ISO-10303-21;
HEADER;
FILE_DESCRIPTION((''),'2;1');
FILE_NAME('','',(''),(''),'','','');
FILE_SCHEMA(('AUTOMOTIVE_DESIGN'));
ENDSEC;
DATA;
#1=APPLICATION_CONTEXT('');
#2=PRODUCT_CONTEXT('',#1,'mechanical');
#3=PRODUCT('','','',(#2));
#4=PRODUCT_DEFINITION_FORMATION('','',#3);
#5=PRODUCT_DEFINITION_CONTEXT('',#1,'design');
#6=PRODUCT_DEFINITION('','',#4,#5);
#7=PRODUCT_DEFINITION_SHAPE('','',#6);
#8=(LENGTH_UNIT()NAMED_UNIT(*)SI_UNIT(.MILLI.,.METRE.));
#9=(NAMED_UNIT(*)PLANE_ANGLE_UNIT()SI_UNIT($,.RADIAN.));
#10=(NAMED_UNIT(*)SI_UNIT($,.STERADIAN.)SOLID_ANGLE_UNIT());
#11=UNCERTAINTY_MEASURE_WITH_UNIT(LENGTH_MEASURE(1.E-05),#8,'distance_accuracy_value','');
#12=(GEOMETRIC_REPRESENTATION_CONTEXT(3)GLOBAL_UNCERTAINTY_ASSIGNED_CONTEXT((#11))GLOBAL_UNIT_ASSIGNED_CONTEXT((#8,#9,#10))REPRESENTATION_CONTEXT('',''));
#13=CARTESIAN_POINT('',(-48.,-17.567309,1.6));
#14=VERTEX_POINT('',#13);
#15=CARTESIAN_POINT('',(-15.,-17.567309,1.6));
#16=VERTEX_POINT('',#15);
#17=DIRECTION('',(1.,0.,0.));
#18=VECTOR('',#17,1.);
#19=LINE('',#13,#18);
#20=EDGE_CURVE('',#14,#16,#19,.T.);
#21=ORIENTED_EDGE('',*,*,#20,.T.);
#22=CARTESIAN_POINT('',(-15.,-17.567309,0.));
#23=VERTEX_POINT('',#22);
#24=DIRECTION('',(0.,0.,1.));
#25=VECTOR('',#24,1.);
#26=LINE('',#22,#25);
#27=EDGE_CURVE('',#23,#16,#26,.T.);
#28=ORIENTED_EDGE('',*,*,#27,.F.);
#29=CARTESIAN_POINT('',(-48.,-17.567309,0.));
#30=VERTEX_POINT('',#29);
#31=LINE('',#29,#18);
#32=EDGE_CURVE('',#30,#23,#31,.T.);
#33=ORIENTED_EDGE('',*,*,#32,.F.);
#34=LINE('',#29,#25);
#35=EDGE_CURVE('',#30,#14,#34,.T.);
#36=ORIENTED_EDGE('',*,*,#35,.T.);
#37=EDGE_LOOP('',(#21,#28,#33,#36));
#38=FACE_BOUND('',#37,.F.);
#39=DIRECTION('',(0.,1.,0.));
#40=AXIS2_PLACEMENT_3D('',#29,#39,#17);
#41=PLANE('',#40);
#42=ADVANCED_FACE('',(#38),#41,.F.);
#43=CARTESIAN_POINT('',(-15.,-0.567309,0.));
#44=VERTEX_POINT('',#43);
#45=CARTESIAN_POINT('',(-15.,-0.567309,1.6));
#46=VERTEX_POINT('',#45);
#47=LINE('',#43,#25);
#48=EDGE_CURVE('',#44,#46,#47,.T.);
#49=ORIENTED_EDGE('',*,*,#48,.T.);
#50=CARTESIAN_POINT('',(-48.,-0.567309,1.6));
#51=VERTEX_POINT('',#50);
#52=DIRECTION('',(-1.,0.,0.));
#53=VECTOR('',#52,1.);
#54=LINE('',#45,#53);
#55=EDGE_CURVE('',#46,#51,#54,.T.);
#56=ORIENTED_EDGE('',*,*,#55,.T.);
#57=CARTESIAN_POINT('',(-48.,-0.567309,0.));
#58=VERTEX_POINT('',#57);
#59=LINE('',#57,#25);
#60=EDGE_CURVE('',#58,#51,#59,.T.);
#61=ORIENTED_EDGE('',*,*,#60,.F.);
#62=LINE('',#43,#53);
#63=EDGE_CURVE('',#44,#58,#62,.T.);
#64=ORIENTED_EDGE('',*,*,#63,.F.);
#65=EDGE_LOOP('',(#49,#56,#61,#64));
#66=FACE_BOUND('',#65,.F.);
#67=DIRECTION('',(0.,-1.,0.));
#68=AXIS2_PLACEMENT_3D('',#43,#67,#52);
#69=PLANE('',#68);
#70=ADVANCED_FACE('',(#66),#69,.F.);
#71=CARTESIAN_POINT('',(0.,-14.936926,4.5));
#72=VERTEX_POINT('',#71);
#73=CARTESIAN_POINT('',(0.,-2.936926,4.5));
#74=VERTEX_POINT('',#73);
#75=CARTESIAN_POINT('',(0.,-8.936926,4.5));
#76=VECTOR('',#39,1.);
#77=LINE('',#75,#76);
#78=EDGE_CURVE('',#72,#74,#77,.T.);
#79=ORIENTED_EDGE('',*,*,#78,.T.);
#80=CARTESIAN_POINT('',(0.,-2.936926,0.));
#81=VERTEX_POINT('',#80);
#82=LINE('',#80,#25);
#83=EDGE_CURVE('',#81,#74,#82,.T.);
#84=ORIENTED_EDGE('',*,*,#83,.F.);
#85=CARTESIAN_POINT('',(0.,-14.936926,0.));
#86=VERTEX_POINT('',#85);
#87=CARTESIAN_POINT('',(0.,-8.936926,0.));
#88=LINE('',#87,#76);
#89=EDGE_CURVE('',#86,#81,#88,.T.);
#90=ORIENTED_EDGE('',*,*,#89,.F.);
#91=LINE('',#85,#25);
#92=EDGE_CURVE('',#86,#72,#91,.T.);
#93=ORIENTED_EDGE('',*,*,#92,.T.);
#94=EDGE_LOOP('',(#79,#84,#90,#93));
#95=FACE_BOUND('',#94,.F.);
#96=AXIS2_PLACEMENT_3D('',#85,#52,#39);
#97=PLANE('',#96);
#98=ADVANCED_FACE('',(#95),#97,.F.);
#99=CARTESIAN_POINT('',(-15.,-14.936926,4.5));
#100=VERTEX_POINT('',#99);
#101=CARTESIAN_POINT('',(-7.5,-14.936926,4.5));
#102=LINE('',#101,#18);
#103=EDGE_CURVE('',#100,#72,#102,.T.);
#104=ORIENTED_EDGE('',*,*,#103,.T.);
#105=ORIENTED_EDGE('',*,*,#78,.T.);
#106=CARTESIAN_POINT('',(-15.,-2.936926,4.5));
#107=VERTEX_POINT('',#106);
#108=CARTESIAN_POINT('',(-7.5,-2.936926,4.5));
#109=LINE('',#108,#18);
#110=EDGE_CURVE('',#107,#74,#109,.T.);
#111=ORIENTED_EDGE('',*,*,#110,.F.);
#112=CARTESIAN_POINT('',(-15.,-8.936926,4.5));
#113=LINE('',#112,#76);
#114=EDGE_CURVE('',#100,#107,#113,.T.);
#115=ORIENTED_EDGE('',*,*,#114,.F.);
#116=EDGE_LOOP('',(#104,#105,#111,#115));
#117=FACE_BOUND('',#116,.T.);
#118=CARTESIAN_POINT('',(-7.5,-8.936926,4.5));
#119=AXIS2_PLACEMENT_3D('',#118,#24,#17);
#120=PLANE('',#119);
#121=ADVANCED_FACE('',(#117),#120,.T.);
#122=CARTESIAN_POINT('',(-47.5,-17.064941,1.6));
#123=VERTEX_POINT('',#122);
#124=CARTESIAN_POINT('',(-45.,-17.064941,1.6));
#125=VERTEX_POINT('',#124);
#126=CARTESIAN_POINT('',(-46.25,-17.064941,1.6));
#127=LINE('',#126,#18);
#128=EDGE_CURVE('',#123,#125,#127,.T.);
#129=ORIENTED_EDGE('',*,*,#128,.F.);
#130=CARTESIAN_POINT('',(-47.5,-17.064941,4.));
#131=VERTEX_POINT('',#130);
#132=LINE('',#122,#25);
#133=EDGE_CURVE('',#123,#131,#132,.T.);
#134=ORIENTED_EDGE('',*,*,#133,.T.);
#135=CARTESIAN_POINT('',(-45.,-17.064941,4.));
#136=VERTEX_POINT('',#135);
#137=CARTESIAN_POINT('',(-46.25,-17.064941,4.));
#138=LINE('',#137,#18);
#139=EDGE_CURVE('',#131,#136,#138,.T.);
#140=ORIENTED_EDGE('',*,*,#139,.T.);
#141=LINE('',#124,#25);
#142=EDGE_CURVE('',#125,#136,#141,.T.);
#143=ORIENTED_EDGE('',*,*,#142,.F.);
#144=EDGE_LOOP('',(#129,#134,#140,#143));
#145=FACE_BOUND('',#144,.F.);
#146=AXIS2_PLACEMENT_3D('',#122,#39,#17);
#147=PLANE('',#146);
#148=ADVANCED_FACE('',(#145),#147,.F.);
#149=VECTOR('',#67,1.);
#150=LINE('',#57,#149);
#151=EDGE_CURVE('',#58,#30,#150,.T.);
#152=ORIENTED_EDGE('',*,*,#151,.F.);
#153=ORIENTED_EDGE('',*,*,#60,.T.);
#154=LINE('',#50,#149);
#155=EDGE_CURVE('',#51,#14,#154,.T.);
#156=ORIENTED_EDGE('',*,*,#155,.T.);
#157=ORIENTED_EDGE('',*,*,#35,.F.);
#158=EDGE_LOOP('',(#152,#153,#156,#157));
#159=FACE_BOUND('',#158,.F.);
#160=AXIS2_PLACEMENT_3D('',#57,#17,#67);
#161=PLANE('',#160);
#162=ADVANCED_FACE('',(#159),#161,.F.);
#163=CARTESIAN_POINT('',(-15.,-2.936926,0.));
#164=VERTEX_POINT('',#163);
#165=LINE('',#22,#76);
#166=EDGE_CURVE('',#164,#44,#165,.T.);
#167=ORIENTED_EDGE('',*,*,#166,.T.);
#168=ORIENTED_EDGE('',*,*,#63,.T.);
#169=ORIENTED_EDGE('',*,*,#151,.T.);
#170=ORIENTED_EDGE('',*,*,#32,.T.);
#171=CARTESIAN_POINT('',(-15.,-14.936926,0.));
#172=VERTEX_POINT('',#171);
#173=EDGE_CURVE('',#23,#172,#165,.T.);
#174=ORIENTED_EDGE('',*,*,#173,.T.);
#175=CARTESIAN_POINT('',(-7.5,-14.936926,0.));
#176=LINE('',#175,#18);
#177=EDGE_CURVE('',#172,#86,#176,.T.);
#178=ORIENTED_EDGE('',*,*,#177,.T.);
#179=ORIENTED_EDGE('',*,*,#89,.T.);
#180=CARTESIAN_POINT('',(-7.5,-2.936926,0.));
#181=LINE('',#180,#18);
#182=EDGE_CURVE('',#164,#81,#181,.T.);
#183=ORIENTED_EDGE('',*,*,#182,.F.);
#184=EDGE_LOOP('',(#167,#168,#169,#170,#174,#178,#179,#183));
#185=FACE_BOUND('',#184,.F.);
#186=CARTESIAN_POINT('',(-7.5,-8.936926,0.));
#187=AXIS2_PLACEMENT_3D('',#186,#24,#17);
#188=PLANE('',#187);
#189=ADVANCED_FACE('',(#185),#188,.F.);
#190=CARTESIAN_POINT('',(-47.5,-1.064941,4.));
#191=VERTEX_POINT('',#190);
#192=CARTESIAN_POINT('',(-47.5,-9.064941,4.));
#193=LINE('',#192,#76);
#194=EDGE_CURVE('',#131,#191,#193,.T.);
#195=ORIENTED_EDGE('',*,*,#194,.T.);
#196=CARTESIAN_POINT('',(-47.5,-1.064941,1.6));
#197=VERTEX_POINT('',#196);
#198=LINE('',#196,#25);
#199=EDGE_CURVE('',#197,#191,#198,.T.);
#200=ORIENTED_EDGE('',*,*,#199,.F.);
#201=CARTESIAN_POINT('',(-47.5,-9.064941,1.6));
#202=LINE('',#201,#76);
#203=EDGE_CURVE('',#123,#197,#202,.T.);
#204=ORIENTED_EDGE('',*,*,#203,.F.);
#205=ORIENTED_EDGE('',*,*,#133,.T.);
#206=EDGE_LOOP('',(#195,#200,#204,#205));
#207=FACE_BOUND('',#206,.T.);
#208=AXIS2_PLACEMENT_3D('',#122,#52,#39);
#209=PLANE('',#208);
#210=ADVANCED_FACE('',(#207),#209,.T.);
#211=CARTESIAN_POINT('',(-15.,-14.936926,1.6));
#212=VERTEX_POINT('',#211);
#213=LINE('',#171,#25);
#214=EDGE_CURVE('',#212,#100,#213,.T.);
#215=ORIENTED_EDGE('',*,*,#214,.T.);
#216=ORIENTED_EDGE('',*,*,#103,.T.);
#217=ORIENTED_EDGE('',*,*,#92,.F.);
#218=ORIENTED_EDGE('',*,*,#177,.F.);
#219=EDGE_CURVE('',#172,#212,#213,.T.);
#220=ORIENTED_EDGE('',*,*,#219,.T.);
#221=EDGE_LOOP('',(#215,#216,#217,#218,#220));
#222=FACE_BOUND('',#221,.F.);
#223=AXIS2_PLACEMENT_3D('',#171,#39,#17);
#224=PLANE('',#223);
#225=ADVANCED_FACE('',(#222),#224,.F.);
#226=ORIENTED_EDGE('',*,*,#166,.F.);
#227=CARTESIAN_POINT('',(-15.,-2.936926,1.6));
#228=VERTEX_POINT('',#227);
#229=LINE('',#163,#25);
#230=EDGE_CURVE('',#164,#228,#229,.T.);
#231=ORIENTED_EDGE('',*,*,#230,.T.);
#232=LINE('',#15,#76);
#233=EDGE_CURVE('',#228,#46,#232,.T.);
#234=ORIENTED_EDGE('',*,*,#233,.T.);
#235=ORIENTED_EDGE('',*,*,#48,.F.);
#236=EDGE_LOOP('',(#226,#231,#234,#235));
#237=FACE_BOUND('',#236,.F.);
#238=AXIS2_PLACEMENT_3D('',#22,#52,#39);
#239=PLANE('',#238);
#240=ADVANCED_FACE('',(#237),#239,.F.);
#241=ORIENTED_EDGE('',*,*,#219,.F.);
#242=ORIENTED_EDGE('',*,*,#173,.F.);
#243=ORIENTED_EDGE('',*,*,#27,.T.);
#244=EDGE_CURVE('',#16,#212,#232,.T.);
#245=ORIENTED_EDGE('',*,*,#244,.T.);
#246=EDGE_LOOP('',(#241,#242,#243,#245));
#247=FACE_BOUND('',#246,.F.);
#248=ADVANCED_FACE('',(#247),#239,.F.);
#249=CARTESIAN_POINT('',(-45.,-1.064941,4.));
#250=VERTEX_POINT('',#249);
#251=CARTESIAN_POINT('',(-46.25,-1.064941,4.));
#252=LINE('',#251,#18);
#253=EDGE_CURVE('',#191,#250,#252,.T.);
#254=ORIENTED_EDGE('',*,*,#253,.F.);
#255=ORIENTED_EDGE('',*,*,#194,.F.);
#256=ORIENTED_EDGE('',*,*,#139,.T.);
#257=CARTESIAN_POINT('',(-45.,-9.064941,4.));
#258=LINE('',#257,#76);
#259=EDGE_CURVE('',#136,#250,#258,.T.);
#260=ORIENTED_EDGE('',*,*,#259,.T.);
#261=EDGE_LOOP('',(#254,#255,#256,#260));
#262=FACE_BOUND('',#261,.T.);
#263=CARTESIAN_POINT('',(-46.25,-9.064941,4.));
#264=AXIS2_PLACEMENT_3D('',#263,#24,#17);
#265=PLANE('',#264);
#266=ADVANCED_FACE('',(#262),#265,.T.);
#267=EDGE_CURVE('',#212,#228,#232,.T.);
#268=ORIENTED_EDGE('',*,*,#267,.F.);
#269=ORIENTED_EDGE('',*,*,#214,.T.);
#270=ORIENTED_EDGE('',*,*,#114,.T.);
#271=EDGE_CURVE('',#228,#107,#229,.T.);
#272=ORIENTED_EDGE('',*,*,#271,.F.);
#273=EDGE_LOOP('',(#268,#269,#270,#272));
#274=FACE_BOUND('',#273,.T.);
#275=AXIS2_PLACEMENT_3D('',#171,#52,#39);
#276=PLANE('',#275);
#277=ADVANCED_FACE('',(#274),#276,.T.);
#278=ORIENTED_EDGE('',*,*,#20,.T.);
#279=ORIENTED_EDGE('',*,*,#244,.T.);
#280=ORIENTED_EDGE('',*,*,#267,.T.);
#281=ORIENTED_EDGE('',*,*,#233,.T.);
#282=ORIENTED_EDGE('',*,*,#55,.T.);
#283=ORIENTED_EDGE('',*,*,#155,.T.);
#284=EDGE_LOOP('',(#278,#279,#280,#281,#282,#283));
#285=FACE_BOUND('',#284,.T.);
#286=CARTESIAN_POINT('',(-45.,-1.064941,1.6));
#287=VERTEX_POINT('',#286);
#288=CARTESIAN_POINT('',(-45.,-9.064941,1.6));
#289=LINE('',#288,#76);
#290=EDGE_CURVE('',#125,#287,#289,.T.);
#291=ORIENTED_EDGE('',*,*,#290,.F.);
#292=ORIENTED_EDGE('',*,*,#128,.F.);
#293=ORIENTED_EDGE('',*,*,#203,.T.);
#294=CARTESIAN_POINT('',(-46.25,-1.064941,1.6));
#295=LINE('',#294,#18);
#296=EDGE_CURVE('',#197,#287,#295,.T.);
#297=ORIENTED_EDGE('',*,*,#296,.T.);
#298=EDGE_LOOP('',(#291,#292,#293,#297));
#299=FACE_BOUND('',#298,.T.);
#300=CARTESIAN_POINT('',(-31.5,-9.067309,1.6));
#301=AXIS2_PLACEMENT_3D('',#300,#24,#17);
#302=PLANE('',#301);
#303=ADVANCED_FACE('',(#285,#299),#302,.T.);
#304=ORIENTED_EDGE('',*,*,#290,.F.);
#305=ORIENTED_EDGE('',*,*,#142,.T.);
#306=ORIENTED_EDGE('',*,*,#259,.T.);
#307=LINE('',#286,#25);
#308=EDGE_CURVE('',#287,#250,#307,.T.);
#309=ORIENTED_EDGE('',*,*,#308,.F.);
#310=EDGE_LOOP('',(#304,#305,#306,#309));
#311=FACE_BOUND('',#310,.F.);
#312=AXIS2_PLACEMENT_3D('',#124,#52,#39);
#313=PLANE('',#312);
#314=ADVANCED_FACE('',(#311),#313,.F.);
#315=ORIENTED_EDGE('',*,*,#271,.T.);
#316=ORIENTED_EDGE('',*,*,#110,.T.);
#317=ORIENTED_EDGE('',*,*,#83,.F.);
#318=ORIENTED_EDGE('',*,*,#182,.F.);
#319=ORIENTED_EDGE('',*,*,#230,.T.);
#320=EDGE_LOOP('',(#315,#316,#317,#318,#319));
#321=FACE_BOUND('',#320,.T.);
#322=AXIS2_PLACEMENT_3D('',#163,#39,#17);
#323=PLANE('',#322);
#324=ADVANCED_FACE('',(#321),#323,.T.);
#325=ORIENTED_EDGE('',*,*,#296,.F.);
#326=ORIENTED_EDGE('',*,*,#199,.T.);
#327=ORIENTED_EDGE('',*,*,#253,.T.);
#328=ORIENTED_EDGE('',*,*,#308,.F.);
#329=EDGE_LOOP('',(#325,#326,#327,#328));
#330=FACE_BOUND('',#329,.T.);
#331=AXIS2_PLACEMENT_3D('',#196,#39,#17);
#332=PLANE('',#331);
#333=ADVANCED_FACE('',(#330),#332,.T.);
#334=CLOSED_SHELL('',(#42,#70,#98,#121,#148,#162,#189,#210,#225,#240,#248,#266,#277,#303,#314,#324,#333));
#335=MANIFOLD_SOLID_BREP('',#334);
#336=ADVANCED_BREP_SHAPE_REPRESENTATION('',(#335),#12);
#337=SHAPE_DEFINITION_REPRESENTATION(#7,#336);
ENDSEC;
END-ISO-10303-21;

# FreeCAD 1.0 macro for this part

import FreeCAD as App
import Part
import Sketcher
from FreeCAD import Vector
Q = App.Units.Quantity


def add_polygon(sketch, points):
    """Adds a closed chain of lines whose ends are joined by coincident constraints."""
    first, n = sketch.GeometryCount, len(points)
    for a, b in zip(points, points[1:] + points[:1]):
        sketch.addGeometry(Part.LineSegment(App.Vector(*a, 0), App.Vector(*b, 0)), False)
    for i in range(n):
        sketch.addConstraint(Sketcher.Constraint("Coincident", first + i, 2, first + (i + 1) % n, 1))

doc = App.newDocument("Part")
params = doc.addObject("Spreadsheet::Sheet", "Params")
for row, (alias, value) in enumerate([
    ("sketch1_width", "33 mm"),
    ("sketch1_height", "17 mm"),
    ("pad1_length", "1.6 mm"),
    ("sketch2_width", "15 mm"),
    ("sketch2_height", "12 mm"),
    ("pad2_length", "4.5 mm"),
    ("sketch3_height", "16 mm"),
    ("sketch3_width", "2.5 mm"),
    ("pad3_length", "2.4 mm"),
], start=1):
    params.set(f"A{row}", alias)
    params.set(f"B{row}", "=" + value)
    params.setAlias(f"B{row}", alias)

body = doc.addObject("PartDesign::Body", "Body")

# Sketch on XY plane
sketch1 = doc.addObject("Sketcher::SketchObject", "Sketch")
body.addObject(sketch1)
sketch1.AttachmentSupport = (doc.XY_Plane, [""])
sketch1.MapMode = "FlatFace"
add_polygon(sketch1, [(-15, -0.567309), (-48, -0.567309), (-48, -17.567309), (-15, -17.567309)])  # lines 0-3
sketch1.addConstraint([
    Sketcher.Constraint("Horizontal", 0),
    Sketcher.Constraint("Vertical", 1),
    Sketcher.Constraint("Horizontal", 2),
    Sketcher.Constraint("Vertical", 3),
    Sketcher.Constraint("DistanceX", 0, 2, 0, 1, Q("33 mm")),
    Sketcher.Constraint("DistanceY", 1, 2, 1, 1, Q("17 mm")),
    Sketcher.Constraint("DistanceX", 0, 2, -1, 1, Q("48 mm")),
    Sketcher.Constraint("DistanceY", 0, 2, -1, 1, Q("0.567309 mm")),
])
sketch1.setExpression("Constraints[8]", "Params.sketch1_width")
sketch1.setExpression("Constraints[9]", "Params.sketch1_height")
pad1 = doc.addObject("PartDesign::Pad", "Pad")
body.addObject(pad1)
pad1.Profile = sketch1
pad1.setExpression("Length", "Params.pad1_length")

# Sketch on XY plane
sketch2 = doc.addObject("Sketcher::SketchObject", "Sketch001")
body.addObject(sketch2)
sketch2.AttachmentSupport = (doc.XY_Plane, [""])
sketch2.MapMode = "FlatFace"
add_polygon(sketch2, [(-15, -2.936926), (-15, -14.936926), (0, -14.936926), (0, -2.936926)])  # lines 0-3
sketch2.addConstraint([
    Sketcher.Constraint("Vertical", 0),
    Sketcher.Constraint("Horizontal", 1),
    Sketcher.Constraint("Vertical", 2),
    Sketcher.Constraint("Horizontal", 3),
    Sketcher.Constraint("PointOnObject", 1, 2, -2),
    Sketcher.Constraint("DistanceX", 1, 1, 1, 2, Q("15 mm")),
    Sketcher.Constraint("DistanceY", 0, 2, 0, 1, Q("12 mm")),
    Sketcher.Constraint("DistanceY", 0, 2, -1, 1, Q("14.936926 mm")),
])
sketch2.setExpression("Constraints[9]", "Params.sketch2_width")
sketch2.setExpression("Constraints[10]", "Params.sketch2_height")
pad2 = doc.addObject("PartDesign::Pad", "Pad001")
body.addObject(pad2)
pad2.Profile = sketch2
pad2.setExpression("Length", "Params.pad2_length")

# Sketch on XY plane
sketch3 = doc.addObject("Sketcher::SketchObject", "Sketch002")
body.addObject(sketch3)
sketch3.AttachmentSupport = (doc.XY_Plane, [""])
sketch3.MapMode = "FlatFace"
sketch3.AttachmentOffset = App.Placement(Vector(0, 0, 1.6), App.Rotation())
add_polygon(sketch3, [(-47.5, -1.064941), (-47.5, -17.064941), (-45, -17.064941), (-45, -1.064941)])  # lines 0-3
sketch3.addConstraint([
    Sketcher.Constraint("Vertical", 0),
    Sketcher.Constraint("Horizontal", 1),
    Sketcher.Constraint("Vertical", 2),
    Sketcher.Constraint("Horizontal", 3),
    Sketcher.Constraint("DistanceY", 0, 2, 0, 1, Q("16 mm")),
    Sketcher.Constraint("DistanceX", 1, 1, 1, 2, Q("2.5 mm")),
    Sketcher.Constraint("DistanceX", 1, 2, -1, 1, Q("45 mm")),
    Sketcher.Constraint("DistanceY", 0, 2, -1, 1, Q("17.064941 mm")),
])
sketch3.setExpression("Constraints[8]", "Params.sketch3_height")
sketch3.setExpression("Constraints[9]", "Params.sketch3_width")
pad3 = doc.addObject("PartDesign::Pad", "Pad002")
body.addObject(pad3)
pad3.Profile = sketch3
pad3.setExpression("Length", "Params.pad3_length")

doc.recompute()
